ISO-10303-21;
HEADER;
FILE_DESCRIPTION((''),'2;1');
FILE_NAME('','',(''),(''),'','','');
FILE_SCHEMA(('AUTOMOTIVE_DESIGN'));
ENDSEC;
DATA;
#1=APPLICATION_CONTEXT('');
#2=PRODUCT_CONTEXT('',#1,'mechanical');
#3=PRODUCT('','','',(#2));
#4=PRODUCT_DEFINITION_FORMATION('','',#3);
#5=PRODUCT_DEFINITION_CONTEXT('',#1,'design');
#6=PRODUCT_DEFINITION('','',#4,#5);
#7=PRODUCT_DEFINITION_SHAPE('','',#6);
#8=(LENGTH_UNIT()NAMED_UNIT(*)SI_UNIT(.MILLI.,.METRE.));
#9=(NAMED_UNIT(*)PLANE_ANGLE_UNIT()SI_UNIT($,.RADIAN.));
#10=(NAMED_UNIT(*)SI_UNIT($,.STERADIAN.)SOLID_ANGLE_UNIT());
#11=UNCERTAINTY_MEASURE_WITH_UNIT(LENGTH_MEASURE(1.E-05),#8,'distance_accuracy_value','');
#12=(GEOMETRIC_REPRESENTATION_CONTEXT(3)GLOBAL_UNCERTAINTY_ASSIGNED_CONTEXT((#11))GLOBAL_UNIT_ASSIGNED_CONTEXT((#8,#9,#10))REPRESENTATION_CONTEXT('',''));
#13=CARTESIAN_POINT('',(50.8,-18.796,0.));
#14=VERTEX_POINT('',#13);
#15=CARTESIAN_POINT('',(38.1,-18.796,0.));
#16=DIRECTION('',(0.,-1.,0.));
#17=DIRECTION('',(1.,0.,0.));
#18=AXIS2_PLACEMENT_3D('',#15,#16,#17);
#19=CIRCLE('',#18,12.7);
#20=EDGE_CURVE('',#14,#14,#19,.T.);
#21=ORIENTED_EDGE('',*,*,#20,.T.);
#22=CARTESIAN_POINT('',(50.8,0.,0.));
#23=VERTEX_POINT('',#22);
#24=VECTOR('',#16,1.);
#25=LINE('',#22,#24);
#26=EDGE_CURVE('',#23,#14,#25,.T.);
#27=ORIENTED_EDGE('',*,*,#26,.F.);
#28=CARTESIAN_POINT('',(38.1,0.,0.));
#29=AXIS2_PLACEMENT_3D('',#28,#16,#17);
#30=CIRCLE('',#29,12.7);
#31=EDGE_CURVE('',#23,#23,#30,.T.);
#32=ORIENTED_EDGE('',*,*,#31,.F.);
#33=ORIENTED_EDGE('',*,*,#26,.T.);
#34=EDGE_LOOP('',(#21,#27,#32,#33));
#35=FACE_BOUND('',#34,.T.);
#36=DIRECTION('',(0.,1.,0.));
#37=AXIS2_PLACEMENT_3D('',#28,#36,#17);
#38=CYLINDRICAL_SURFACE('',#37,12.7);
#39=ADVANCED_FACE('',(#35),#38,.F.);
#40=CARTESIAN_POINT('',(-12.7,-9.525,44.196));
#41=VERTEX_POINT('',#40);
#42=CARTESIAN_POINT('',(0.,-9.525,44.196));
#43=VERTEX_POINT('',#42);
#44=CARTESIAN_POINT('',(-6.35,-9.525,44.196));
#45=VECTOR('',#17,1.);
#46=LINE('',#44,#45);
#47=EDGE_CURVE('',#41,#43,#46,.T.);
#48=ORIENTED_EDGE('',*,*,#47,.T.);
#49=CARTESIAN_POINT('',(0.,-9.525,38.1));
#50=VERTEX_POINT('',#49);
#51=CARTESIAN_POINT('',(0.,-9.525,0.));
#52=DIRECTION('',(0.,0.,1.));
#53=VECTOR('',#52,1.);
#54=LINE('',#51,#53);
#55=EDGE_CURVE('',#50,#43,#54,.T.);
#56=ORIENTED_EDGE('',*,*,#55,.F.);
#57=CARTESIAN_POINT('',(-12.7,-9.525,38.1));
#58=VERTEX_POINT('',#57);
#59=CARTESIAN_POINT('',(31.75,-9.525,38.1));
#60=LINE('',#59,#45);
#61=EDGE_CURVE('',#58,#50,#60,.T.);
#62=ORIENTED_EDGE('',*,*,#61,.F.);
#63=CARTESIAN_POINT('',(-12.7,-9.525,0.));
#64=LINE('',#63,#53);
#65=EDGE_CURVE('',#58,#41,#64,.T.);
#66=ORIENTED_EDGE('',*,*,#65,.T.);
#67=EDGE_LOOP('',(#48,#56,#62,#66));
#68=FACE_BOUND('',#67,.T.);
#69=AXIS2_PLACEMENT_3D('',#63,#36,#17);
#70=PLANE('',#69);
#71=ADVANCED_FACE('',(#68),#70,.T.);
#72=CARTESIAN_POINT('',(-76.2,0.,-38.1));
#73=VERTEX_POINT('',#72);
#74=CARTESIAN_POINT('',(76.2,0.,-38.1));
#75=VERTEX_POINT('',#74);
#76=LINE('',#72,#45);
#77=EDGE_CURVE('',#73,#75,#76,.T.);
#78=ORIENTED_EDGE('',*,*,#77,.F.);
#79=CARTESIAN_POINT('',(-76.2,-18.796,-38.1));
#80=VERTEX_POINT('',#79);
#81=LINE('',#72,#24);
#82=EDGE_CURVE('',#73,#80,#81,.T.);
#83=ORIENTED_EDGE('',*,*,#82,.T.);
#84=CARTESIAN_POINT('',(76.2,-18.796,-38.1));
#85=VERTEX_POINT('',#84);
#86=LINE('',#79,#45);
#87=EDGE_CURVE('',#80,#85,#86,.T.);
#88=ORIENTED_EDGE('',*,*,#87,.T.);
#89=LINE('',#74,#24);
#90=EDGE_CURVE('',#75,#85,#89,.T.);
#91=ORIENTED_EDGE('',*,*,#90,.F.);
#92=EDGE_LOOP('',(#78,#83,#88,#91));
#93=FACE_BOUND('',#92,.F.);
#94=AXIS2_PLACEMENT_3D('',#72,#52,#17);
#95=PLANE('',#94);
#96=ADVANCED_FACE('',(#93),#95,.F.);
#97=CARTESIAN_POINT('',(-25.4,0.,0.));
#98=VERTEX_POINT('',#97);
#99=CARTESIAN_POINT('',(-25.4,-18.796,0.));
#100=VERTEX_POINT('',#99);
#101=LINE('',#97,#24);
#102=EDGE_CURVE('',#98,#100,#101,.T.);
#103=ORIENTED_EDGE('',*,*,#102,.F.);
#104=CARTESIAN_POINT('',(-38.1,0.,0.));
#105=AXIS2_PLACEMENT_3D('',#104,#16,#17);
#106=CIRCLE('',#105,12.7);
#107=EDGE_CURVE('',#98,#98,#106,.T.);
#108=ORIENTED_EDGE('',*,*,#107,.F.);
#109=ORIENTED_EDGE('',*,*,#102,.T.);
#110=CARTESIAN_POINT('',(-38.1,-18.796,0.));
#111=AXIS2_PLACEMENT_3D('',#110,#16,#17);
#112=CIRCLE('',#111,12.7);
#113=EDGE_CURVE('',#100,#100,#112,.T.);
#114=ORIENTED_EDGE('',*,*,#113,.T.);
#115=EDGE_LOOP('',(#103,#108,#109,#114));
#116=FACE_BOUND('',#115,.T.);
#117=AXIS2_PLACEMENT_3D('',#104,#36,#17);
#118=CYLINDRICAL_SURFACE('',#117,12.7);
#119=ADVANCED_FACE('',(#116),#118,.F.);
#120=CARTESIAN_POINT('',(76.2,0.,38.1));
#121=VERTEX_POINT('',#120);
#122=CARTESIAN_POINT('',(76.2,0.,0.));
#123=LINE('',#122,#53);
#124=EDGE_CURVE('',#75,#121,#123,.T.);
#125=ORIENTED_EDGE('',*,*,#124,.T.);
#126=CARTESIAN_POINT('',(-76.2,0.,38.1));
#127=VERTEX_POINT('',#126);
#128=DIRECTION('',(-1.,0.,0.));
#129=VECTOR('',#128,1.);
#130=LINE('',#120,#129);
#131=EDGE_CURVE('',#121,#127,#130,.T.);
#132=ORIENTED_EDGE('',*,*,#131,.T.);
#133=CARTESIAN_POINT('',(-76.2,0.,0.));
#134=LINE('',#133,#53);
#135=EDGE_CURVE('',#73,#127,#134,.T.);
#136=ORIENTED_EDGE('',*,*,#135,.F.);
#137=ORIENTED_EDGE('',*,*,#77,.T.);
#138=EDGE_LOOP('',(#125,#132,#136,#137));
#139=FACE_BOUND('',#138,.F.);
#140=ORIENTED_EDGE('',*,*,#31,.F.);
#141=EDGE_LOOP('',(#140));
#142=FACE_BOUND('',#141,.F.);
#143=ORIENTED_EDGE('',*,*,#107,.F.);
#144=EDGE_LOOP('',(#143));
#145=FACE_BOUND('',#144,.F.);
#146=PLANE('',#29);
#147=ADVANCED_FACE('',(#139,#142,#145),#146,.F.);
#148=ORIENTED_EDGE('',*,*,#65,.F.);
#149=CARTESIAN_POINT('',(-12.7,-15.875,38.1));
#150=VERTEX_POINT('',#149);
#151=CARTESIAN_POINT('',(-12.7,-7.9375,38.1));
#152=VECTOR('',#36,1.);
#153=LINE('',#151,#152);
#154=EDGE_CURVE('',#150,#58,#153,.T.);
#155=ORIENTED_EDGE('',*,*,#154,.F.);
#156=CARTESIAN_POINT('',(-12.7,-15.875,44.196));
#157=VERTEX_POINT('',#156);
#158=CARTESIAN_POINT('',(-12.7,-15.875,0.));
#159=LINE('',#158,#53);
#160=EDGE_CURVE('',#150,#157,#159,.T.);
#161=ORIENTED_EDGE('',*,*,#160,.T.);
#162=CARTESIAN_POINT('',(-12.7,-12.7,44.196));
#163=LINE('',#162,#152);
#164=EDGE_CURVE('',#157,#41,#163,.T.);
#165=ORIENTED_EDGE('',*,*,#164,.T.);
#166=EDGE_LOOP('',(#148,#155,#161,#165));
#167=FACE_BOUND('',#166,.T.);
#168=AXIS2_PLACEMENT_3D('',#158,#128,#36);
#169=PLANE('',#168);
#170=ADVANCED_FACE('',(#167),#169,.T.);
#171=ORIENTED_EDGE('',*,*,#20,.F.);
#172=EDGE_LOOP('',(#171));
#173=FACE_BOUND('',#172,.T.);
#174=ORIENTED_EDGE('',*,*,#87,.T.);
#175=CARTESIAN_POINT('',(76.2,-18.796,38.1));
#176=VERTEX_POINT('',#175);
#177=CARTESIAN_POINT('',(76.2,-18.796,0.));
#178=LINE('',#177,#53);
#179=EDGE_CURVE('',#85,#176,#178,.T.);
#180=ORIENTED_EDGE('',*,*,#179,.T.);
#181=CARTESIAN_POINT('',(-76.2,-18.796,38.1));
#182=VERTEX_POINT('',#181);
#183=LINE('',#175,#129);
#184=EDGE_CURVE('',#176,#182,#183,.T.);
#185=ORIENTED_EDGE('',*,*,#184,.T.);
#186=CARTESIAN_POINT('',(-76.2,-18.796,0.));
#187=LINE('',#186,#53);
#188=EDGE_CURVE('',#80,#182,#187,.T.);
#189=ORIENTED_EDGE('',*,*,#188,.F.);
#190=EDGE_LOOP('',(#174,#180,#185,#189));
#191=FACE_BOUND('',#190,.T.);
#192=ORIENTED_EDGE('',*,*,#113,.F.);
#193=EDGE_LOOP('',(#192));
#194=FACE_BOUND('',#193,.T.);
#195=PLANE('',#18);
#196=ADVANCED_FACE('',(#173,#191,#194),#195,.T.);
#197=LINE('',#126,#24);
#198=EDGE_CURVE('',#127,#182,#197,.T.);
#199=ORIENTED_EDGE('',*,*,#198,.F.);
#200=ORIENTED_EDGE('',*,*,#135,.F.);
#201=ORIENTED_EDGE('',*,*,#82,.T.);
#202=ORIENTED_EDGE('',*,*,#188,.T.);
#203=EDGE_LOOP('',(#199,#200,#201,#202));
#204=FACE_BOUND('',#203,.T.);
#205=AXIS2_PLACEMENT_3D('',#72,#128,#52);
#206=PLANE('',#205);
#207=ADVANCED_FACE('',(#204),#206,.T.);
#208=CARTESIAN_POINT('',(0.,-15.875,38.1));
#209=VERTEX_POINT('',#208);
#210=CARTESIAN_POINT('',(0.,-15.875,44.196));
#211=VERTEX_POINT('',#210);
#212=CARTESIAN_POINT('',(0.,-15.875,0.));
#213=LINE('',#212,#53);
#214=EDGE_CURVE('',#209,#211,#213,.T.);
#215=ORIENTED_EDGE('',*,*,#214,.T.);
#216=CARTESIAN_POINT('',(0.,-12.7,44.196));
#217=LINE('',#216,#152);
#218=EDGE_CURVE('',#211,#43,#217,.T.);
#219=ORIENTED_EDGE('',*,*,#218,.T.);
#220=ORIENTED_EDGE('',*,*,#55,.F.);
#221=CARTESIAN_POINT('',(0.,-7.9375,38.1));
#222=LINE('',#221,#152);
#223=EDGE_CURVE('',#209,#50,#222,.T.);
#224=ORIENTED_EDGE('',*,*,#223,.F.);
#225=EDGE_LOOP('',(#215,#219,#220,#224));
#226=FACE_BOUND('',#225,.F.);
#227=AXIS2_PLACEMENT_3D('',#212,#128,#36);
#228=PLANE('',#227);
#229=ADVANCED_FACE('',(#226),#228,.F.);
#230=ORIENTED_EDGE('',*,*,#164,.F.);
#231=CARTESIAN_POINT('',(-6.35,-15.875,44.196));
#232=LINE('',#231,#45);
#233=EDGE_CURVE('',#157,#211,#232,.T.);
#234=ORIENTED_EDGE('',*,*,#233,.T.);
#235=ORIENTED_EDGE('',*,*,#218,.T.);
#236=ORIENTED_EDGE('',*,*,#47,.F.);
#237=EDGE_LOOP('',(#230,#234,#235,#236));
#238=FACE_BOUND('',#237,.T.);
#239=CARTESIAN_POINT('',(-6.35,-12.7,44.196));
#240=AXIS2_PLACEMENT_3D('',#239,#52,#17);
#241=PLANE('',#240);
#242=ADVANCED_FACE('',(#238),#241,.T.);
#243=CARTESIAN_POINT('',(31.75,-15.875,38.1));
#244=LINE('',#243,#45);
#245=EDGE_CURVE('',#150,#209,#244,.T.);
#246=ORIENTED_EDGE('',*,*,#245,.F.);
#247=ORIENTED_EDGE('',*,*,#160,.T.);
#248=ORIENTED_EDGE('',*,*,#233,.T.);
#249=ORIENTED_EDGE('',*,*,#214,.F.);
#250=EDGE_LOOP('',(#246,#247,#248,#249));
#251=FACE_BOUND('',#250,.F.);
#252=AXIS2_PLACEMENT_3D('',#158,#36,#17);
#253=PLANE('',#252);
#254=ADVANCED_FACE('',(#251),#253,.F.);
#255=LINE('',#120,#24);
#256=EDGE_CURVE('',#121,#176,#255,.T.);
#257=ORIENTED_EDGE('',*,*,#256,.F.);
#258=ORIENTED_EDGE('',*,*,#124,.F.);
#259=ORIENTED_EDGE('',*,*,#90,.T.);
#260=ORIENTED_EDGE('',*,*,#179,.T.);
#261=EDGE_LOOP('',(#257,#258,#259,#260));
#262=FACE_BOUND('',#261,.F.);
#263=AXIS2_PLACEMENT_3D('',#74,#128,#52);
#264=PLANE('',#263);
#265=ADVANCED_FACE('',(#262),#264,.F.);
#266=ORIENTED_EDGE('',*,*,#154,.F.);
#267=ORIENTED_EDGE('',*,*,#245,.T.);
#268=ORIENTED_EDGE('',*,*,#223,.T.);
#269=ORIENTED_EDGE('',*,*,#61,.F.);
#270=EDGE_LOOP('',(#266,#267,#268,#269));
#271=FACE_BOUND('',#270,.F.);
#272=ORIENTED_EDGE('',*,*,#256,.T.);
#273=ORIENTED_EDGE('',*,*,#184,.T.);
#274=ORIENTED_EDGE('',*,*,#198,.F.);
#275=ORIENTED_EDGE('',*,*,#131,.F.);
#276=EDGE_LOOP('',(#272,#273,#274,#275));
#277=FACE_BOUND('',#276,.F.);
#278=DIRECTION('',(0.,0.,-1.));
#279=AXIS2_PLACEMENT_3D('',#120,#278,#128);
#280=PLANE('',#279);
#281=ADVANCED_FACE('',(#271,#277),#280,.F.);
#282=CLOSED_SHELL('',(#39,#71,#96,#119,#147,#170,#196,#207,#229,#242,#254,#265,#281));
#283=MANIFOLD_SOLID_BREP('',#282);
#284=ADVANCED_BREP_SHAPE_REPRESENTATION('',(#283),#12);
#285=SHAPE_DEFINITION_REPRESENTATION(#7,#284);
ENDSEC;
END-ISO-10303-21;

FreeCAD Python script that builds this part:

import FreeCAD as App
import Part
import Sketcher
from FreeCAD import Vector
Q = App.Units.Quantity

doc = App.newDocument("Part")
body = doc.addObject("PartDesign::Body", "Body")

sketch1 = doc.addObject("Sketcher::SketchObject", "Sketch")
body.addObject(sketch1)
sketch1.AttachmentSupport = (doc.XZ_Plane, [""])
sketch1.MapMode = "FlatFace"
sketch1.addGeometry([
    Part.LineSegment(Vector(76, -38, 0), Vector(76, 38, 0)),
    Part.LineSegment(Vector(76, 38, 0), Vector(-76, 38, 0)),
    Part.LineSegment(Vector(-76, 38, 0), Vector(-76, -38, 0)),
    Part.LineSegment(Vector(-76, -38, 0), Vector(76, -38, 0)),
    Part.Circle(Vector(-38, 0, 0), Vector(0, 0, 1), 13),
    Part.Circle(Vector(38, 0, 0), Vector(0, 0, 1), 13),
], False)
sketch1.addConstraint([
    Sketcher.Constraint("Coincident", 0, 2, 1, 1),
    Sketcher.Constraint("Coincident", 1, 2, 2, 1),
    Sketcher.Constraint("Coincident", 2, 2, 3, 1),
    Sketcher.Constraint("Coincident", 3, 2, 0, 1),
    Sketcher.Constraint("Vertical", 0),
    Sketcher.Constraint("Horizontal", 1),
    Sketcher.Constraint("Vertical", 2),
    Sketcher.Constraint("Horizontal", 3),
    Sketcher.Constraint("Equal", 4, 5),
    Sketcher.Constraint("Symmetric", 4, 3, 5, 3, -1, 1),
    Sketcher.Constraint("Symmetric", 0, 2, 2, 2, -1, 1),
    Sketcher.Constraint("PointOnObject", 4, 3, -1),
    Sketcher.Constraint("Diameter", 4, Q("1 in")),
    Sketcher.Constraint("DistanceX", 1, 2, 1, 1, Q("6 in")),
    Sketcher.Constraint("DistanceY", 0, 1, 0, 2, Q("3 in")),
    Sketcher.Constraint("DistanceX", 4, 3, 5, 3, Q("3 in")),
])
pad1 = doc.addObject("PartDesign::Pad", "Pad")
body.addObject(pad1)
pad1.Profile = sketch1
pad1.Length = Q("0.74 in")

sketch2 = doc.addObject("Sketcher::SketchObject", "Sketch001")
body.addObject(sketch2)
sketch2.AttachmentSupport = (doc.XY_Plane, [""])
sketch2.MapMode = "FlatFace"
sketch2.addGeometry([
    Part.LineSegment(Vector(-13, -10, 0), Vector(-13, -16, 0)),
    Part.LineSegment(Vector(-13, -16, 0), Vector(0, -16, 0)),
    Part.LineSegment(Vector(0, -16, 0), Vector(0, -10, 0)),
    Part.LineSegment(Vector(0, -10, 0), Vector(-13, -10, 0)),
], False)
sketch2.addConstraint([
    Sketcher.Constraint("Coincident", 0, 2, 1, 1),
    Sketcher.Constraint("Coincident", 1, 2, 2, 1),
    Sketcher.Constraint("Coincident", 2, 2, 3, 1),
    Sketcher.Constraint("Coincident", 3, 2, 0, 1),
    Sketcher.Constraint("Vertical", 0),
    Sketcher.Constraint("Horizontal", 1),
    Sketcher.Constraint("Vertical", 2),
    Sketcher.Constraint("Horizontal", 3),
    Sketcher.Constraint("PointOnObject", 1, 2, -2),
    Sketcher.Constraint("DistanceX", 1, 1, 1, 2, Q("0.5 in")),
    Sketcher.Constraint("DistanceY", 0, 2, 0, 1, Q("0.25 in")),
    Sketcher.Constraint("DistanceY", 0, 2, -1, 1, Q("0.625 in")),
])
pad2 = doc.addObject("PartDesign::Pad", "Pad001")
body.addObject(pad2)
pad2.Profile = sketch2
pad2.Length = Q("1.74 in")

doc.recompute()
